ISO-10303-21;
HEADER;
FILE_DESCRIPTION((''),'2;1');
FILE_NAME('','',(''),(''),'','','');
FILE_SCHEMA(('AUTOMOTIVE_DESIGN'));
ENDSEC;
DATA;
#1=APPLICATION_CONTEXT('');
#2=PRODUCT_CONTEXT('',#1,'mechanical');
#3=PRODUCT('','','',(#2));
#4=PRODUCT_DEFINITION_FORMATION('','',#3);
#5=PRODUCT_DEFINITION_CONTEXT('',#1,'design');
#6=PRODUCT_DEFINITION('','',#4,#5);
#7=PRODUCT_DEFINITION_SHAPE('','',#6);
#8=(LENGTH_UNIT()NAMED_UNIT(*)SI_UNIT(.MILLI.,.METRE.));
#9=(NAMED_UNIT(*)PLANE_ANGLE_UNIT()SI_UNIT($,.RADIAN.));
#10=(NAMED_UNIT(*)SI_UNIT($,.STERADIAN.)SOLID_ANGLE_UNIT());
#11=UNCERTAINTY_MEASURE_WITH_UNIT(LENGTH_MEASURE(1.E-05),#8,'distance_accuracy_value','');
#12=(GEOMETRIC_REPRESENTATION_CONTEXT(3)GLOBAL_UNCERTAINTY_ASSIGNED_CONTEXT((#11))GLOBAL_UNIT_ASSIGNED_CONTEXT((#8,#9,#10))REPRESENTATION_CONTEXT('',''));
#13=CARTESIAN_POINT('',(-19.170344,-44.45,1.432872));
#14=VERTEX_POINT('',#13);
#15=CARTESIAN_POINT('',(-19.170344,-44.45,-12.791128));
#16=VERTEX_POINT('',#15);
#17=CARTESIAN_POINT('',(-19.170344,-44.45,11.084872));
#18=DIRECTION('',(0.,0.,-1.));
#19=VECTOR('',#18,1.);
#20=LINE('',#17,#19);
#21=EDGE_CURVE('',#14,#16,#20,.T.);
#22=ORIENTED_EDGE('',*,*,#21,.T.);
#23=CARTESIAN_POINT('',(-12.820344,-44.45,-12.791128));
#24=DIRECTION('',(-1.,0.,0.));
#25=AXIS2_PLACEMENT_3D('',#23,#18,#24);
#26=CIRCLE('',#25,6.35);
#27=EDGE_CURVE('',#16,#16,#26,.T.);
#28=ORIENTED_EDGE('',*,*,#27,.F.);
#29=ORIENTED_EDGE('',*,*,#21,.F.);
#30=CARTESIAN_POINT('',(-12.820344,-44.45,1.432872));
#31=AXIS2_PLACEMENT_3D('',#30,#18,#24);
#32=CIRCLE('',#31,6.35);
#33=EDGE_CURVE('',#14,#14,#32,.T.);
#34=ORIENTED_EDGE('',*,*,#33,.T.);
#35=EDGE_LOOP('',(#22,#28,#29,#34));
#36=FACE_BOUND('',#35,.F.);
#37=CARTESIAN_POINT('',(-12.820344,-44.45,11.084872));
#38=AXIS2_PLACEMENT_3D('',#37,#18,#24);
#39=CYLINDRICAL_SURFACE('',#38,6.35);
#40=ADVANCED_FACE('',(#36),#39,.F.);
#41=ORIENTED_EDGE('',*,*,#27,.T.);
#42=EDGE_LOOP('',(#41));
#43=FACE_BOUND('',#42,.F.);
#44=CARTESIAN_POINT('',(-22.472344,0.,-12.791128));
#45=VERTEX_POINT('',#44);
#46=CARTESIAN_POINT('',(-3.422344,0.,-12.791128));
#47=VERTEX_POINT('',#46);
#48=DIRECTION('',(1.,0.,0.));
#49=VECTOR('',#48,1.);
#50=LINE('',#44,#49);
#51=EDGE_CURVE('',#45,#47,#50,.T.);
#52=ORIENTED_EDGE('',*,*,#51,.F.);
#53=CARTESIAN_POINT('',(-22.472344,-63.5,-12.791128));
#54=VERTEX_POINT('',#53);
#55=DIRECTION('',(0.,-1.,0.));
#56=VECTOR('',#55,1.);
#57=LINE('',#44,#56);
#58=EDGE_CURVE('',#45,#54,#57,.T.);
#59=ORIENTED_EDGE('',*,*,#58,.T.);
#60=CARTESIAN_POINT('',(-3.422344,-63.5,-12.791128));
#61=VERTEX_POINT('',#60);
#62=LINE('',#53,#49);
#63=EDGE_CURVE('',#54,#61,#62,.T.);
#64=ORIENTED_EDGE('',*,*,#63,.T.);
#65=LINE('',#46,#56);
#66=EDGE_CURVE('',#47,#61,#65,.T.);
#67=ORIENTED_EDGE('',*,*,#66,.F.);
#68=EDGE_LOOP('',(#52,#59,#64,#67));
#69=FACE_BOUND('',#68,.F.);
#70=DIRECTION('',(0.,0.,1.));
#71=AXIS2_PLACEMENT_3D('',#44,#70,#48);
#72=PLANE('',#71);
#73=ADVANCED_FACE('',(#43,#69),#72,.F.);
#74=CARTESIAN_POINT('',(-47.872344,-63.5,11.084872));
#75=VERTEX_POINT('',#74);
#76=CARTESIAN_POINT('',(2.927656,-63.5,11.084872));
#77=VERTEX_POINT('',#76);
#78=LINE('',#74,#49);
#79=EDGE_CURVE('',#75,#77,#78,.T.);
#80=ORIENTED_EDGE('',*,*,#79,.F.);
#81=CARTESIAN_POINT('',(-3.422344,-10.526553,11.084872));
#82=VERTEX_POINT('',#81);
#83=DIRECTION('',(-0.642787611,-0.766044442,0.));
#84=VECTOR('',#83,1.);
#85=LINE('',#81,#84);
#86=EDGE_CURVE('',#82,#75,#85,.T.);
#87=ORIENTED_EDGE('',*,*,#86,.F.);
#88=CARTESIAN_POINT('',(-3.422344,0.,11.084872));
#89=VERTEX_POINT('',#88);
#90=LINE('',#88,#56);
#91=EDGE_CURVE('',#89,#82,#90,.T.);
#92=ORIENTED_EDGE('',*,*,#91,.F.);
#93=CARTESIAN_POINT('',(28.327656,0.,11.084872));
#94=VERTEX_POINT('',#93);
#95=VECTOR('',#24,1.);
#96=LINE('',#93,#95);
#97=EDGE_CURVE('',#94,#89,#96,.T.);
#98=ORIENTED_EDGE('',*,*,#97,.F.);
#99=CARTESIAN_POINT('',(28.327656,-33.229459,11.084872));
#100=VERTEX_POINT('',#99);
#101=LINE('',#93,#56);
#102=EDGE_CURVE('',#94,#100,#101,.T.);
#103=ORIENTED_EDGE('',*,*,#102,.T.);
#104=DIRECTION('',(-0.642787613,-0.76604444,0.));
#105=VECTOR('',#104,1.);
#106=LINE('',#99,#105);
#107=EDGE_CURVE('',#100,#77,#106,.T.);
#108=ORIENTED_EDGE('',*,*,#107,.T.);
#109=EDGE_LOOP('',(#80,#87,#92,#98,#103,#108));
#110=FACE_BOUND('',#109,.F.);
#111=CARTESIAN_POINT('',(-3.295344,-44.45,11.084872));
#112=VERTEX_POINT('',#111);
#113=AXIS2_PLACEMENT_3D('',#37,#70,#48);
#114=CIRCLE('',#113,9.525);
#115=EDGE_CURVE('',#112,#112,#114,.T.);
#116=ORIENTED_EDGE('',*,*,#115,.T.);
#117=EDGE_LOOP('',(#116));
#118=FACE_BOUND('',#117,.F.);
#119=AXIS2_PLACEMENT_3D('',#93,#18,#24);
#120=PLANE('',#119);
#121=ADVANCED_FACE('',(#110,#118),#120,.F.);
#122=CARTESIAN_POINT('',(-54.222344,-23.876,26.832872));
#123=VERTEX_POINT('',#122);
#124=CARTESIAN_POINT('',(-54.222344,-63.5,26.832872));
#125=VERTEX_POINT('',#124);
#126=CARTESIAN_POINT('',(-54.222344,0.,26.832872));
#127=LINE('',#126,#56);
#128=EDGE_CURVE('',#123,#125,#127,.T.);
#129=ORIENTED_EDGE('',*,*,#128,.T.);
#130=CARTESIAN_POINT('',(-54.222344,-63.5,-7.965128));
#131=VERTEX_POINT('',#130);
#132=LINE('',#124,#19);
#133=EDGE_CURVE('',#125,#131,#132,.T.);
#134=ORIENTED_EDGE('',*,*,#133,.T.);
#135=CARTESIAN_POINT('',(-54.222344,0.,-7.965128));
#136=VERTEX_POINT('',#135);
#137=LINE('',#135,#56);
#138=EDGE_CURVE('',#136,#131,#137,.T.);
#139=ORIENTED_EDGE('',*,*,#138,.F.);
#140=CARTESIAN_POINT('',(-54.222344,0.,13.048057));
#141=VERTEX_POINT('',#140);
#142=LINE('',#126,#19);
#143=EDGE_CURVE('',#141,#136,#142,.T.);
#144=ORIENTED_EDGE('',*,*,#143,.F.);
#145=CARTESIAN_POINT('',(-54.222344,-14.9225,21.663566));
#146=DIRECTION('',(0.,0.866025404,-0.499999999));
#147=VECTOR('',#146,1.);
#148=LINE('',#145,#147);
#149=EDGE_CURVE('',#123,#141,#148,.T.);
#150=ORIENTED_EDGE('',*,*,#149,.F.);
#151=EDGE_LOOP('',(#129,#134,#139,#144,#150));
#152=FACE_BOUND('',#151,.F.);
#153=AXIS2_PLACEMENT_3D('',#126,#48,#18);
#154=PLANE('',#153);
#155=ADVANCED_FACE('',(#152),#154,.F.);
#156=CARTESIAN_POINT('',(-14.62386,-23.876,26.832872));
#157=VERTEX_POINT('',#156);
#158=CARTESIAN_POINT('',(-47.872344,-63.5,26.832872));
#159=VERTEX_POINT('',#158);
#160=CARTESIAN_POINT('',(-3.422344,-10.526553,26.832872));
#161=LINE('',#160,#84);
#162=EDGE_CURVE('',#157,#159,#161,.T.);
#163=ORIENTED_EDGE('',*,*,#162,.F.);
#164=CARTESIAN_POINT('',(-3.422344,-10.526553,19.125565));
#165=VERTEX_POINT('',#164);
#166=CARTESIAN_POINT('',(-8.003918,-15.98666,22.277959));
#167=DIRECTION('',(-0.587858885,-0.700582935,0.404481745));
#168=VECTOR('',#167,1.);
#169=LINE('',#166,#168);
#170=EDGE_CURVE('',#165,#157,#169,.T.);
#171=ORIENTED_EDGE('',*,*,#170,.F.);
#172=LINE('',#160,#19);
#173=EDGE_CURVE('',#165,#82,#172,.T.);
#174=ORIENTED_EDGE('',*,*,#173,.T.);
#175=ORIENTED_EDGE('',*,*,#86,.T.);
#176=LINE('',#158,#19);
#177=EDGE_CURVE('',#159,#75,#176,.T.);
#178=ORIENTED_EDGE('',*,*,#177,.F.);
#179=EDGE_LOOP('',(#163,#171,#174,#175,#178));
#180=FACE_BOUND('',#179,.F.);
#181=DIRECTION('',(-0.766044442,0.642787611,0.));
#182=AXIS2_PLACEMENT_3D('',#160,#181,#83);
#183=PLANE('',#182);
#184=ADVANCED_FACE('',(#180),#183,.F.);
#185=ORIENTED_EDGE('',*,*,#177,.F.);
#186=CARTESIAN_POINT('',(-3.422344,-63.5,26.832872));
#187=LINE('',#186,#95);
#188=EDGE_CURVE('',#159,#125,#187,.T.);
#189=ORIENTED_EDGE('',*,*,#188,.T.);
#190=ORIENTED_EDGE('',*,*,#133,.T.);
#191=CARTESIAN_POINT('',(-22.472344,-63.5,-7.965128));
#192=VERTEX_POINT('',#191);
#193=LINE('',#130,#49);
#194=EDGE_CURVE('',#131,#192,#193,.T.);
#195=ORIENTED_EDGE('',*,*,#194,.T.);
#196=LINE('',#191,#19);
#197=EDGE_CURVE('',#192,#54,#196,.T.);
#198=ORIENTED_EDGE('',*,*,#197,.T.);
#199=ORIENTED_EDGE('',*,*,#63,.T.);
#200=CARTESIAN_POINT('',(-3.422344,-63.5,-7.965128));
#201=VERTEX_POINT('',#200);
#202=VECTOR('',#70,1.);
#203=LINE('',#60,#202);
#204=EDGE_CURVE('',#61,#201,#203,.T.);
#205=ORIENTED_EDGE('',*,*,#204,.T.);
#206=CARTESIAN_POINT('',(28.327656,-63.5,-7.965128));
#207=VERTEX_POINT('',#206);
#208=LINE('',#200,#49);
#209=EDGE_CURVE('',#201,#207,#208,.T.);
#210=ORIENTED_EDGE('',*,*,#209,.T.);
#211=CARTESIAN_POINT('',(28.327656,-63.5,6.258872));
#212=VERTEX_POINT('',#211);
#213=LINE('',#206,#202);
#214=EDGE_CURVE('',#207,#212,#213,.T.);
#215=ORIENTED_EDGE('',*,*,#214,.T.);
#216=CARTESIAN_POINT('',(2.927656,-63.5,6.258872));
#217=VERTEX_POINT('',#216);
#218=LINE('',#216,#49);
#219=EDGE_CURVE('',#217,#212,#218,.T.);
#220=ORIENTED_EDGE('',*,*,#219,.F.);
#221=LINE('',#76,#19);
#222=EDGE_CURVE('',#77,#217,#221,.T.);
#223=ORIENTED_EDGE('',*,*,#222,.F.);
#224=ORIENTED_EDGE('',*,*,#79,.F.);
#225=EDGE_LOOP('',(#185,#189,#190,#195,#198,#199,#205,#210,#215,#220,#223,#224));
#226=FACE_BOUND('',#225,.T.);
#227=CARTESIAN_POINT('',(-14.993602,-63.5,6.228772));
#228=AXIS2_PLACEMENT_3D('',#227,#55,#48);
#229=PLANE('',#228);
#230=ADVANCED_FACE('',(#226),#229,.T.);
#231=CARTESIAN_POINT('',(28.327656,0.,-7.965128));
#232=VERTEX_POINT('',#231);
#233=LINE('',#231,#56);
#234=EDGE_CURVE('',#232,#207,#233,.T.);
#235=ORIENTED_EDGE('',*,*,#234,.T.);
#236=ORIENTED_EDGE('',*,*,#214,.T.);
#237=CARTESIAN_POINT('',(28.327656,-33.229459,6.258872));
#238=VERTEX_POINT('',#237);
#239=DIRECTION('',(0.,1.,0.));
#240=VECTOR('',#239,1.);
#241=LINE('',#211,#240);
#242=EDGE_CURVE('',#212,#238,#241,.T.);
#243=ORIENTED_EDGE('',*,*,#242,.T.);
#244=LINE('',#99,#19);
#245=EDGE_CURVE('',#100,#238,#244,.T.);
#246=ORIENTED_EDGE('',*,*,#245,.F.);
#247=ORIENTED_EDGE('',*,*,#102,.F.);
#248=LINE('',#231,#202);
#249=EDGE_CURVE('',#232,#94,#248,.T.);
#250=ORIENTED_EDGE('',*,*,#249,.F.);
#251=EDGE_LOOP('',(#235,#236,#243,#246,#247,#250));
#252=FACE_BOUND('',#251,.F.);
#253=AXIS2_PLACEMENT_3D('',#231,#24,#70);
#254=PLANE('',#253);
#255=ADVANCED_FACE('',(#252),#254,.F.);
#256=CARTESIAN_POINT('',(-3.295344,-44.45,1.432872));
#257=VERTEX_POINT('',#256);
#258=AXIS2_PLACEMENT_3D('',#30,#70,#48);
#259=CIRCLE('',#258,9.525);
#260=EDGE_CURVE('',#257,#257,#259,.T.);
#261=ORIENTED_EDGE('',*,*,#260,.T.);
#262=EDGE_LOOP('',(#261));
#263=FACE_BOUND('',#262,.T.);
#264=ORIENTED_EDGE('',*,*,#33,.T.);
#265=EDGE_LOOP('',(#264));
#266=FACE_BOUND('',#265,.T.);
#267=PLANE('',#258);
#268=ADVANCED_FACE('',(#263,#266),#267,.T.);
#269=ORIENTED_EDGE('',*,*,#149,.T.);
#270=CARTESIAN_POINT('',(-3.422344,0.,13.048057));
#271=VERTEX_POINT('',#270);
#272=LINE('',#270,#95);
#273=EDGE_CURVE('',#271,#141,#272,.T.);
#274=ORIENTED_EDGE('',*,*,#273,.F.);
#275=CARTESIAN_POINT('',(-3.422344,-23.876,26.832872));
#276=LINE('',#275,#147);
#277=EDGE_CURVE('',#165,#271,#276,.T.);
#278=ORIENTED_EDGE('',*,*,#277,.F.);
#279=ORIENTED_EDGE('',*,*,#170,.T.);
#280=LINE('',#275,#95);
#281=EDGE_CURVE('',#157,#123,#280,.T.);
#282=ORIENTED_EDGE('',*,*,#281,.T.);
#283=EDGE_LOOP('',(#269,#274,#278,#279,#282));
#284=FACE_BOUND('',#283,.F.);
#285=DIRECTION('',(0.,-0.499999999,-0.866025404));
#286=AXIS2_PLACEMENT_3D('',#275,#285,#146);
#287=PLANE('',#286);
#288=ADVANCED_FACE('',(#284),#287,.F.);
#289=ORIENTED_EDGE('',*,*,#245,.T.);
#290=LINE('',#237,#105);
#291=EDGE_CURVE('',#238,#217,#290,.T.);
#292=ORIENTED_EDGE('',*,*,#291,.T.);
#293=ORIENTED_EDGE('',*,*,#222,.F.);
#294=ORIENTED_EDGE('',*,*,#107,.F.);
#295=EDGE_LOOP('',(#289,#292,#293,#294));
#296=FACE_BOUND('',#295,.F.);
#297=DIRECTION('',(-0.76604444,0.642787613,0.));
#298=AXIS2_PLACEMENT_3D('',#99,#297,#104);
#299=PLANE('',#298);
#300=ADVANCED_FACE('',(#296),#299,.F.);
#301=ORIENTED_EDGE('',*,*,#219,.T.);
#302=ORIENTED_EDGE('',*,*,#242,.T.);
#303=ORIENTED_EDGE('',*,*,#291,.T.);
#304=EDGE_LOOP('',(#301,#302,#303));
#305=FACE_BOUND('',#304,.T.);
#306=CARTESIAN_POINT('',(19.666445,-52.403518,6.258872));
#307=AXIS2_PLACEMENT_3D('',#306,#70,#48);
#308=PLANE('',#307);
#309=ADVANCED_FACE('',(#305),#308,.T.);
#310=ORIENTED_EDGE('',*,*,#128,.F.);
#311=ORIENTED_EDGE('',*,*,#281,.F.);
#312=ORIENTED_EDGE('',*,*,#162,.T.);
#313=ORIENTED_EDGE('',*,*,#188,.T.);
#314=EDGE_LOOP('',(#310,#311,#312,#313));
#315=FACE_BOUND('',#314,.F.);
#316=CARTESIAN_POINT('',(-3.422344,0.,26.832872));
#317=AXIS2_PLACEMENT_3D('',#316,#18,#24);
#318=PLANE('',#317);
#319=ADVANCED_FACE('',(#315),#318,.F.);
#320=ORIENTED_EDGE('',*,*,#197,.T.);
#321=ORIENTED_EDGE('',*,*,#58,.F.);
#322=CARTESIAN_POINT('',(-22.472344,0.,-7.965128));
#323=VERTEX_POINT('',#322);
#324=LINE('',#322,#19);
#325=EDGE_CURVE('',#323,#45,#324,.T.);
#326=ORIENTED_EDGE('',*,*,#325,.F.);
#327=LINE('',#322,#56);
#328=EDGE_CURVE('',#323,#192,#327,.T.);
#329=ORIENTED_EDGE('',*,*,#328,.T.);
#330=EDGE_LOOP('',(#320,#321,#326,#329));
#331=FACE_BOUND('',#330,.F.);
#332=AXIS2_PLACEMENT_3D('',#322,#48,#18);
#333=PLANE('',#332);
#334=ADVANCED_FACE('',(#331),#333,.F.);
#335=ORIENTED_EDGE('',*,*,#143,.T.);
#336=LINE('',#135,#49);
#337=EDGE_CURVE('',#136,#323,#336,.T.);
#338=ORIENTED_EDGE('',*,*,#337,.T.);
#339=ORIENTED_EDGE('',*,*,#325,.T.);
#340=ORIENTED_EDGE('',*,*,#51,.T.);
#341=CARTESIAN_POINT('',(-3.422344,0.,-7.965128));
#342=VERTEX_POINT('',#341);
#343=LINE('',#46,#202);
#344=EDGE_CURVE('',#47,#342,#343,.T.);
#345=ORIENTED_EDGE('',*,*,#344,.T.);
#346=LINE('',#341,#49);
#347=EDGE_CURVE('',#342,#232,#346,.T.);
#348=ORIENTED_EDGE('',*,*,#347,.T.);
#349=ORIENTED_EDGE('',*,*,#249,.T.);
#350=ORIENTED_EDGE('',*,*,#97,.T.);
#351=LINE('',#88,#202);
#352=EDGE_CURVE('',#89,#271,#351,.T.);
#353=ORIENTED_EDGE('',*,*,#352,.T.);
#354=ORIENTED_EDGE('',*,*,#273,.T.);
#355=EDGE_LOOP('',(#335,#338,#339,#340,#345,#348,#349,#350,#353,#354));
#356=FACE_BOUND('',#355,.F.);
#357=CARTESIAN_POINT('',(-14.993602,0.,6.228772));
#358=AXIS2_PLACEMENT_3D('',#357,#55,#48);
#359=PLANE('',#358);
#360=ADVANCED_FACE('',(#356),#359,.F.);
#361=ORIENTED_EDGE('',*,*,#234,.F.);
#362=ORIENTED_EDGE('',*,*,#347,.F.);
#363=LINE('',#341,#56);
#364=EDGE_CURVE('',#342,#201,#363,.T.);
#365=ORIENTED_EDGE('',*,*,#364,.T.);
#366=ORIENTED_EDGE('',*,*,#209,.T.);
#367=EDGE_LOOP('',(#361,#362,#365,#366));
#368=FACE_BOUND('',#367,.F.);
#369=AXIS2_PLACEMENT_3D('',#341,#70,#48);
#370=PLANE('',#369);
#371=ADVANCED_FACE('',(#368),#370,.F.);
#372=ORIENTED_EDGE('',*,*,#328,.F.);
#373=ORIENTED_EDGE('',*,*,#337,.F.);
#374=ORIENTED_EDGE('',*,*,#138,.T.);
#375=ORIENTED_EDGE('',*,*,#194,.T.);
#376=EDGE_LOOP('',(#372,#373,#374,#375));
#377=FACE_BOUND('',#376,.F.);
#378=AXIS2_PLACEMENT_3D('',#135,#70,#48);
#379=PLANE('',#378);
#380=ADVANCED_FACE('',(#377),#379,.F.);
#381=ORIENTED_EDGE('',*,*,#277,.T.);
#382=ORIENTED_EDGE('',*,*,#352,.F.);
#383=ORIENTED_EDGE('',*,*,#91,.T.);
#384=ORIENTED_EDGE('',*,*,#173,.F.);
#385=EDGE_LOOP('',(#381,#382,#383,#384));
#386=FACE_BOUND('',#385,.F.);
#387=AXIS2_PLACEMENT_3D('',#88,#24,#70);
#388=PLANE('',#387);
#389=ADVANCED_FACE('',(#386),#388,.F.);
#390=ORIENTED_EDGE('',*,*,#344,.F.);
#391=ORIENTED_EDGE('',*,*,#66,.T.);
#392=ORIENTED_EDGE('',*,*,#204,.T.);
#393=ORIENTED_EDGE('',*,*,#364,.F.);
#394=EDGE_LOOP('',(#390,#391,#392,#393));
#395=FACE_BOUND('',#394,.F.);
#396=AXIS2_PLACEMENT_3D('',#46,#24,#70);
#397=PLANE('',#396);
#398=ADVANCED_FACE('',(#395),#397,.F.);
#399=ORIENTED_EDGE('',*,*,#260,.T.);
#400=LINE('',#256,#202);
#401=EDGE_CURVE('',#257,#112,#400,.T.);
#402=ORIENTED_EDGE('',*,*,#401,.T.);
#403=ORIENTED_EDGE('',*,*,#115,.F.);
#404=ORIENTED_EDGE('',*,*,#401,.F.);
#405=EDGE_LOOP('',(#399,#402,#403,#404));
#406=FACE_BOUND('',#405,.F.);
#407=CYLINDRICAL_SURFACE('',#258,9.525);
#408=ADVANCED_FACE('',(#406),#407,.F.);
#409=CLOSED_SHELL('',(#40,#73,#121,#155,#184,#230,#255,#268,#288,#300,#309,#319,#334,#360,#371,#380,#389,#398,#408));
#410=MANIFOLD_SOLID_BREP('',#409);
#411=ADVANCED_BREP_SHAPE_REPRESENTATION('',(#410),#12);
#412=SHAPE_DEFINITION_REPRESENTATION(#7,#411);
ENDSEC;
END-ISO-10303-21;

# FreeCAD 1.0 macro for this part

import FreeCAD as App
import Part
import Sketcher
Q = App.Units.Quantity


def add_polygon(sketch, points):
    """Adds a closed chain of lines whose ends are joined by coincident constraints."""
    first, n = sketch.GeometryCount, len(points)
    for a, b in zip(points, points[1:] + points[:1]):
        sketch.addGeometry(Part.LineSegment(App.Vector(*a, 0), App.Vector(*b, 0)), False)
    for i in range(n):
        sketch.addConstraint(Sketcher.Constraint("Coincident", first + i, 2, first + (i + 1) % n, 1))

doc = App.newDocument("Part")
body = doc.addObject("PartDesign::Body", "Body")

# Sketch on XZ plane
sketch1 = body.newObject("Sketcher::SketchObject", "Sketch")
sketch1.AttachmentSupport = (doc.getObject("XZ_Plane"), [""])
sketch1.MapMode = "FlatFace"
add_polygon(sketch1, [(-3.4, 11.1), (-3.4, 26.8), (-54.2, 26.8), (-54.2, -8), (-22.5, -8), (-22.5, -12.8), (-3.4, -12.8), (-3.4, -8), (28.3, -8), (28.3, 11.1)])  # lines 0-9
sketch1.addConstraint([
    Sketcher.Constraint("Vertical", 0),
    Sketcher.Constraint("Horizontal", 1),
    Sketcher.Constraint("Vertical", 2),
    Sketcher.Constraint("Horizontal", 3),
    Sketcher.Constraint("Vertical", 4),
    Sketcher.Constraint("Horizontal", 5),
    Sketcher.Constraint("Vertical", 6),
    Sketcher.Constraint("Horizontal", 7),
    Sketcher.Constraint("Vertical", 8),
    Sketcher.Constraint("Horizontal", 9),
    Sketcher.Constraint("Horizontal", 3, 2, 6, 2),
    Sketcher.Constraint("Vertical", 0, 2, 5, 2),
    Sketcher.Constraint("Equal", 3, 7),
    Sketcher.Constraint("Equal", 5, 8),
    Sketcher.Constraint("DistanceX", 1, 2, 1, 1, Q("2 in")),
    Sketcher.Constraint("DistanceX", 3, 1, 3, 2, Q("1.25 in")),
    Sketcher.Constraint("DistanceY", 0, 1, 0, 2, Q("0.62 in")),
    Sketcher.Constraint("DistanceY", 4, 2, 4, 1, Q("0.19 in")),
    Sketcher.Constraint("DistanceY", -1, 1, 0, 2, Q("26.832872 mm")),
    Sketcher.Constraint("DistanceX", 0, 2, -1, 1, Q("3.422344 mm")),
])
pad1 = body.newObject("PartDesign::Pad", "Pad")
pad1.Profile = sketch1
pad1.Length = Q("2.5 in")

# Sketch on XY plane
sketch2 = body.newObject("Sketcher::SketchObject", "Sketch001")
sketch2.AttachmentSupport = (doc.getObject("XY_Plane"), [""])
sketch2.MapMode = "FlatFace"
sketch2.AttachmentOffset = App.Placement(App.Vector(0, 0, 26.832872), App.Rotation())
add_polygon(sketch2, [(-3, -11), (-48, -64), (-3, -64)])  # lines 0-2
sketch2.addConstraint([
    Sketcher.Constraint("Horizontal", 1),
    Sketcher.Constraint("Vertical", 2),
    Sketcher.Constraint("Angle", 0, Q("-130 deg")),
    Sketcher.Constraint("DistanceX", 1, 1, 1, 2, Q("1.75 in")),
    Sketcher.Constraint("DistanceY", 0, 2, -1, 1, Q("2.5 in")),
    Sketcher.Constraint("DistanceX", 0, 2, -1, 1, Q("47.872344 mm")),
])
pocket1 = body.newObject("PartDesign::Pocket", "Pocket")
pocket1.Profile = sketch2
pocket1.Length = Q("0.62 in")

# Sketch on XY plane
sketch3 = body.newObject("Sketcher::SketchObject", "Sketch002")
sketch3.AttachmentSupport = (doc.getObject("XY_Plane"), [""])
sketch3.MapMode = "FlatFace"
sketch3.AttachmentOffset = App.Placement(App.Vector(0, 0, 11.084872), App.Rotation())
add_polygon(sketch3, [(3, -64), (28, -64), (28, -33)])  # lines 0-2
sketch3.addConstraint([
    Sketcher.Constraint("Horizontal", 0),
    Sketcher.Constraint("Vertical", 1),
    Sketcher.Constraint("DistanceX", 0, 1, 0, 2, Q("1 in")),
    Sketcher.Constraint("Angle", 2, Q("-130 deg")),
    Sketcher.Constraint("DistanceY", 0, 2, -1, 1, Q("2.5 in")),
    Sketcher.Constraint("DistanceX", -1, 1, 0, 2, Q("28.327656 mm")),
])
pocket2 = body.newObject("PartDesign::Pocket", "Pocket001")
pocket2.Profile = sketch3
pocket2.Length = Q("0.19 in")

# Sketch on YZ plane
sketch4 = body.newObject("Sketcher::SketchObject", "Sketch003")
sketch4.AttachmentSupport = (doc.getObject("YZ_Plane"), [""])
sketch4.MapMode = "FlatFace"
sketch4.AttachmentOffset = App.Placement(App.Vector(0, 0, -3.422344), App.Rotation())
add_polygon(sketch4, [(0, 13), (0, 27), (-24, 27)])  # lines 0-2
sketch4.addConstraint([
    Sketcher.Constraint("Vertical", 0),
    Sketcher.Constraint("Horizontal", 1),
    Sketcher.Constraint("PointOnObject", 0, 2, -2),
    Sketcher.Constraint("Angle", 2, Q("-30 deg")),
    Sketcher.Constraint("DistanceX", 1, 2, 1, 1, Q("0.94 in")),
    Sketcher.Constraint("DistanceY", -1, 1, 0, 2, Q("26.832872 mm")),
])
pocket3 = body.newObject("PartDesign::Pocket", "Pocket002")
pocket3.Profile = sketch4
pocket3.Length = Q("2.17 in")

# Sketch on XY plane
sketch5 = body.newObject("Sketcher::SketchObject", "Sketch004")
sketch5.AttachmentSupport = (doc.getObject("XY_Plane"), [""])
sketch5.MapMode = "FlatFace"
sketch5.AttachmentOffset = App.Placement(App.Vector(0, 0, 11.084872), App.Rotation())
sketch5.addGeometry(Part.Circle(App.Vector(-13, -44, 0), App.Vector(0, 0, 1), 6), False)
sketch5.addConstraint([
    Sketcher.Constraint("Diameter", 0, Q("0.5 in")),
    Sketcher.Constraint("DistanceY", 0, 3, -1, 1, Q("1.75 in")),
    Sketcher.Constraint("DistanceX", 0, 3, -1, 1, Q("12.820344 mm")),
])
doc.recompute()
hole = body.newObject("PartDesign::Hole", "Hole")
hole.Profile = sketch5
hole.ThreadType = "None"
hole.Diameter = Q("0.5 in")
hole.DepthType = "ThroughAll"
hole.HoleCutType = "Counterbore"
hole.HoleCutDiameter = Q("0.75 in")
hole.HoleCutDepth = Q("0.38 in")

doc.recompute()
